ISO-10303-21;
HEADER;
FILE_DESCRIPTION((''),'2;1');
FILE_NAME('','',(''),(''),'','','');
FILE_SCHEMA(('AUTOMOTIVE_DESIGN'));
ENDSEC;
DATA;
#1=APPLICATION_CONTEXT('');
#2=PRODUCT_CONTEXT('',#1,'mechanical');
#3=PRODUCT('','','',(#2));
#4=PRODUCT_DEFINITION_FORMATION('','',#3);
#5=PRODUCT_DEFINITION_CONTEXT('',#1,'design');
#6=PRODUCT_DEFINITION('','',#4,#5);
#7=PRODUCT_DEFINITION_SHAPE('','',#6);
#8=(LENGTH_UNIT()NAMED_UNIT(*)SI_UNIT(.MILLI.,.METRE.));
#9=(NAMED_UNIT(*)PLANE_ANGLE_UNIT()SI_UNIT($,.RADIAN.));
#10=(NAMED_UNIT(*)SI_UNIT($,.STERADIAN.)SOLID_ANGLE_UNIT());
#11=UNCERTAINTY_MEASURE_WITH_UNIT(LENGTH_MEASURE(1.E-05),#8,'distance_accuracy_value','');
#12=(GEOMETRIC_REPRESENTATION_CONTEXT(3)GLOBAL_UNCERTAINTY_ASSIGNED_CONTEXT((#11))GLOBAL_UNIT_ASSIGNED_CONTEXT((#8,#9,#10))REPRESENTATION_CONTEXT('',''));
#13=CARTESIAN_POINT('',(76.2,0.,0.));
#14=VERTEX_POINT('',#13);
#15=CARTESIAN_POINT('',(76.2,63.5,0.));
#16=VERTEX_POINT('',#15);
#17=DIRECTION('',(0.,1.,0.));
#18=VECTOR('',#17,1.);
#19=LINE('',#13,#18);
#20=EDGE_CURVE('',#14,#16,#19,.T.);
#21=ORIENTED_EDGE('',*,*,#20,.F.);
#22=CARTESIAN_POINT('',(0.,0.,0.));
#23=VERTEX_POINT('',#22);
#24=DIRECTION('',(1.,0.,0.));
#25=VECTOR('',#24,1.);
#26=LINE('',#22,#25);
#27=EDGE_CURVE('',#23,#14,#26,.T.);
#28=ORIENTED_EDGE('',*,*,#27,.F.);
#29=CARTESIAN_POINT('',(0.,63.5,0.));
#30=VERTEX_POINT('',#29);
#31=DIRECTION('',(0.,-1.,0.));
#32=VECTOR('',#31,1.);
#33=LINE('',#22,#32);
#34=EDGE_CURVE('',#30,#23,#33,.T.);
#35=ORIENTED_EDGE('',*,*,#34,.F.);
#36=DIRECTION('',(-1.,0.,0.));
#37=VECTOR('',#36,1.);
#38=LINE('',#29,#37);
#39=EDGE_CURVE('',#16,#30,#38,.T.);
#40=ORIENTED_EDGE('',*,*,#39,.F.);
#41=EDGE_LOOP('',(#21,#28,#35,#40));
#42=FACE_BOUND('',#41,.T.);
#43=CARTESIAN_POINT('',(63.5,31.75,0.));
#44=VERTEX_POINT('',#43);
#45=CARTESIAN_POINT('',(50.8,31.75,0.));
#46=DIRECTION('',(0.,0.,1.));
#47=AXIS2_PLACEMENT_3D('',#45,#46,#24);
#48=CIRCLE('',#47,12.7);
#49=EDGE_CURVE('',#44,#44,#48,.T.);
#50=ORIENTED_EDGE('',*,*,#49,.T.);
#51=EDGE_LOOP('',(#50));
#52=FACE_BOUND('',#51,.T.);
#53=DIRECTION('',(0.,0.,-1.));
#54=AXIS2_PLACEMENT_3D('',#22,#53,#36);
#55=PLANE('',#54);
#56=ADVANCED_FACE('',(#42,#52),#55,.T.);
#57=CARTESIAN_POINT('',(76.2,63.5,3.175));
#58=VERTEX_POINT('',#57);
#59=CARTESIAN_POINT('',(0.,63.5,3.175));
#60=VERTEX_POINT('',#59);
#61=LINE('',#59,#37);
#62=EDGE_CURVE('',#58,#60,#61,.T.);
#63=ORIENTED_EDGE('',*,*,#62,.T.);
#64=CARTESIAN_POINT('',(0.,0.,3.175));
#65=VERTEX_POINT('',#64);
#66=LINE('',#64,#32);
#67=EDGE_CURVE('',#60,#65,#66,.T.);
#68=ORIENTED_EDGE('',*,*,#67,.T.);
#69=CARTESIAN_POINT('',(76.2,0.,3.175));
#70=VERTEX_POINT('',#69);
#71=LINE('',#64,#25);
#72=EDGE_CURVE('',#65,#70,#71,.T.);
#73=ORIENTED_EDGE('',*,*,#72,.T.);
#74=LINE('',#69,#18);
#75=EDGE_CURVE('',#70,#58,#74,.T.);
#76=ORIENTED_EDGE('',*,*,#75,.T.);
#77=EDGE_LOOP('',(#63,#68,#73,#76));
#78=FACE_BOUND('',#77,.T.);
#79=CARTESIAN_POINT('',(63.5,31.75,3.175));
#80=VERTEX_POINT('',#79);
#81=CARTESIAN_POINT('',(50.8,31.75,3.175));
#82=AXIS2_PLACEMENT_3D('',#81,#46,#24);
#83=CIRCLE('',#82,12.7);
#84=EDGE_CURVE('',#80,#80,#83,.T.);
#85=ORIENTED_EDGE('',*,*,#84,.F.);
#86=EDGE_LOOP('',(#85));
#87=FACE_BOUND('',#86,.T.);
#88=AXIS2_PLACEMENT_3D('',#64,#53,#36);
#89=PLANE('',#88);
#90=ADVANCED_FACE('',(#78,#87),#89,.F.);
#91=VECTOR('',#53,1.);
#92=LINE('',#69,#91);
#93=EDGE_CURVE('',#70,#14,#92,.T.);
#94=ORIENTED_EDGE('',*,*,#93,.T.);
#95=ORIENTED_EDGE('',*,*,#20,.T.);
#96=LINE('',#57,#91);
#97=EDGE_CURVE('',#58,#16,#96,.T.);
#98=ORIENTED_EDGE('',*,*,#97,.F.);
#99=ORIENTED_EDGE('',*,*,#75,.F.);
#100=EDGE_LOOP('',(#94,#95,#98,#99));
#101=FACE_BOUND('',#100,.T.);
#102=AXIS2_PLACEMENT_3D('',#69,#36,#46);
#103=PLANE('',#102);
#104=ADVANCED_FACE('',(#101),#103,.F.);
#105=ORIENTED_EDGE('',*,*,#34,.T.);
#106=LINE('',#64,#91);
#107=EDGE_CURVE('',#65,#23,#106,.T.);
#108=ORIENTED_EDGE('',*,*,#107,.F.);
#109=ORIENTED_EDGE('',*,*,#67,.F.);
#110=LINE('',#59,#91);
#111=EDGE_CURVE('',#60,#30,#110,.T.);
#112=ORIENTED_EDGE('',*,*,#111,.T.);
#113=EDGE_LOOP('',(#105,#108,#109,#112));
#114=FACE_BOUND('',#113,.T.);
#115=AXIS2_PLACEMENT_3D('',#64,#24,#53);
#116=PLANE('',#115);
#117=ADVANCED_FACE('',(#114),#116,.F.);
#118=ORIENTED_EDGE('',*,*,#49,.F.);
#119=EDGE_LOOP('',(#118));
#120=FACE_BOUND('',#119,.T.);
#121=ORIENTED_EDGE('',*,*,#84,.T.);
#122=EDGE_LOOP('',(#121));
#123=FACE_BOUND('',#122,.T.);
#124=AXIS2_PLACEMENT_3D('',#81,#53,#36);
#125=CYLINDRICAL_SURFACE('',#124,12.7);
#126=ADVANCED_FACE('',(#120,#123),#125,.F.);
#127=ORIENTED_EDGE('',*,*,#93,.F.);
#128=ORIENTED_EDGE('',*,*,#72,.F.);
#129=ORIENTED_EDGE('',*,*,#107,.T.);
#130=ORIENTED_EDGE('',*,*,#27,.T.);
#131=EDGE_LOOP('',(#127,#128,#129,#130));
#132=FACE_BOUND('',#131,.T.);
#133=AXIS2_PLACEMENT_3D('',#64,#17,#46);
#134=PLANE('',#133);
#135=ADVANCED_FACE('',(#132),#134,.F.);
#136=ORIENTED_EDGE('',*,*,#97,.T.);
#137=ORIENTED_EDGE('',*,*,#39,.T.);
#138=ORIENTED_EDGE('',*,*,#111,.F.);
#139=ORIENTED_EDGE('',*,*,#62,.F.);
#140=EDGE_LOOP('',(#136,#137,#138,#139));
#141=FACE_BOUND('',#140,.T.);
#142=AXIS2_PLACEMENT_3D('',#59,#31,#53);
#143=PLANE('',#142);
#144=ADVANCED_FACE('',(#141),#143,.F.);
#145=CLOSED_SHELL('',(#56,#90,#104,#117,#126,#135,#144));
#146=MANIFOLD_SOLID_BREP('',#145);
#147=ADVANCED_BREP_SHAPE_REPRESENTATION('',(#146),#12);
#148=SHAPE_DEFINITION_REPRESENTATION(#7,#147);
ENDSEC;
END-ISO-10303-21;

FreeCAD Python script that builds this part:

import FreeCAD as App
import Part
import Sketcher

V = App.Vector
Q = App.Units.Quantity


def add_polygon(sketch, points):
    """Adds a closed chain of lines whose ends are joined by coincident constraints."""
    first, n = sketch.GeometryCount, len(points)
    for a, b in zip(points, points[1:] + points[:1]):
        sketch.addGeometry(Part.LineSegment(App.Vector(*a, 0), App.Vector(*b, 0)), False)
    for i in range(n):
        sketch.addConstraint(Sketcher.Constraint("Coincident", first + i, 2, first + (i + 1) % n, 1))

doc = App.newDocument("Part")
params = doc.addObject("Spreadsheet::Sheet", "Params")
for row, (alias, value) in enumerate([
    ("sketch1_diameter", "1 in"),
    ("sketch1_width", "3 in"),
    ("sketch1_height", "2.5 in"),
    ("pad1_length", "0.125 in"),
], start=1):
    params.set(f"A{row}", alias)
    params.set(f"B{row}", "=" + value)
    params.setAlias(f"B{row}", alias)

body = doc.addObject("PartDesign::Body", "Body")

# Sketch on XY plane
sketch1 = body.newObject("Sketcher::SketchObject", "Sketch")
sketch1.AttachmentSupport = (doc.getObject("XY_Plane"), [""])
sketch1.MapMode = "FlatFace"
add_polygon(sketch1, [(0, 64), (0, 0), (76, 0), (76, 64)])  # lines 0-3
sketch1.addGeometry(Part.Circle(V(51, 32, 0), V(0, 0, 1), 13), False)  # 4
sketch1.addConstraint(Sketcher.Constraint("Vertical", 0))
sketch1.addConstraint(Sketcher.Constraint("Horizontal", 1))
sketch1.addConstraint(Sketcher.Constraint("Vertical", 2))
sketch1.addConstraint(Sketcher.Constraint("Horizontal", 3))
sketch1.addConstraint(Sketcher.Constraint("Coincident", 0, 2, -1, 1))
sketch1.addConstraint(Sketcher.Constraint("Diameter", 4, Q("1 in")))
sketch1.addConstraint(Sketcher.Constraint("DistanceX", 1, 1, 1, 2, Q("3 in")))
sketch1.addConstraint(Sketcher.Constraint("DistanceY", 0, 2, 0, 1, Q("2.5 in")))
sketch1.addConstraint(Sketcher.Constraint("DistanceX", -1, 1, 4, 3, Q("2 in")))
sketch1.addConstraint(Sketcher.Constraint("DistanceY", -1, 1, 4, 3, Q("1.25 in")))
sketch1.setExpression("Constraints[9]", "Params.sketch1_diameter")
sketch1.setExpression("Constraints[10]", "Params.sketch1_width")
sketch1.setExpression("Constraints[11]", "Params.sketch1_height")
pad1 = body.newObject("PartDesign::Pad", "Pad")
pad1.Profile = sketch1
pad1.setExpression("Length", "Params.pad1_length")

doc.recompute()
